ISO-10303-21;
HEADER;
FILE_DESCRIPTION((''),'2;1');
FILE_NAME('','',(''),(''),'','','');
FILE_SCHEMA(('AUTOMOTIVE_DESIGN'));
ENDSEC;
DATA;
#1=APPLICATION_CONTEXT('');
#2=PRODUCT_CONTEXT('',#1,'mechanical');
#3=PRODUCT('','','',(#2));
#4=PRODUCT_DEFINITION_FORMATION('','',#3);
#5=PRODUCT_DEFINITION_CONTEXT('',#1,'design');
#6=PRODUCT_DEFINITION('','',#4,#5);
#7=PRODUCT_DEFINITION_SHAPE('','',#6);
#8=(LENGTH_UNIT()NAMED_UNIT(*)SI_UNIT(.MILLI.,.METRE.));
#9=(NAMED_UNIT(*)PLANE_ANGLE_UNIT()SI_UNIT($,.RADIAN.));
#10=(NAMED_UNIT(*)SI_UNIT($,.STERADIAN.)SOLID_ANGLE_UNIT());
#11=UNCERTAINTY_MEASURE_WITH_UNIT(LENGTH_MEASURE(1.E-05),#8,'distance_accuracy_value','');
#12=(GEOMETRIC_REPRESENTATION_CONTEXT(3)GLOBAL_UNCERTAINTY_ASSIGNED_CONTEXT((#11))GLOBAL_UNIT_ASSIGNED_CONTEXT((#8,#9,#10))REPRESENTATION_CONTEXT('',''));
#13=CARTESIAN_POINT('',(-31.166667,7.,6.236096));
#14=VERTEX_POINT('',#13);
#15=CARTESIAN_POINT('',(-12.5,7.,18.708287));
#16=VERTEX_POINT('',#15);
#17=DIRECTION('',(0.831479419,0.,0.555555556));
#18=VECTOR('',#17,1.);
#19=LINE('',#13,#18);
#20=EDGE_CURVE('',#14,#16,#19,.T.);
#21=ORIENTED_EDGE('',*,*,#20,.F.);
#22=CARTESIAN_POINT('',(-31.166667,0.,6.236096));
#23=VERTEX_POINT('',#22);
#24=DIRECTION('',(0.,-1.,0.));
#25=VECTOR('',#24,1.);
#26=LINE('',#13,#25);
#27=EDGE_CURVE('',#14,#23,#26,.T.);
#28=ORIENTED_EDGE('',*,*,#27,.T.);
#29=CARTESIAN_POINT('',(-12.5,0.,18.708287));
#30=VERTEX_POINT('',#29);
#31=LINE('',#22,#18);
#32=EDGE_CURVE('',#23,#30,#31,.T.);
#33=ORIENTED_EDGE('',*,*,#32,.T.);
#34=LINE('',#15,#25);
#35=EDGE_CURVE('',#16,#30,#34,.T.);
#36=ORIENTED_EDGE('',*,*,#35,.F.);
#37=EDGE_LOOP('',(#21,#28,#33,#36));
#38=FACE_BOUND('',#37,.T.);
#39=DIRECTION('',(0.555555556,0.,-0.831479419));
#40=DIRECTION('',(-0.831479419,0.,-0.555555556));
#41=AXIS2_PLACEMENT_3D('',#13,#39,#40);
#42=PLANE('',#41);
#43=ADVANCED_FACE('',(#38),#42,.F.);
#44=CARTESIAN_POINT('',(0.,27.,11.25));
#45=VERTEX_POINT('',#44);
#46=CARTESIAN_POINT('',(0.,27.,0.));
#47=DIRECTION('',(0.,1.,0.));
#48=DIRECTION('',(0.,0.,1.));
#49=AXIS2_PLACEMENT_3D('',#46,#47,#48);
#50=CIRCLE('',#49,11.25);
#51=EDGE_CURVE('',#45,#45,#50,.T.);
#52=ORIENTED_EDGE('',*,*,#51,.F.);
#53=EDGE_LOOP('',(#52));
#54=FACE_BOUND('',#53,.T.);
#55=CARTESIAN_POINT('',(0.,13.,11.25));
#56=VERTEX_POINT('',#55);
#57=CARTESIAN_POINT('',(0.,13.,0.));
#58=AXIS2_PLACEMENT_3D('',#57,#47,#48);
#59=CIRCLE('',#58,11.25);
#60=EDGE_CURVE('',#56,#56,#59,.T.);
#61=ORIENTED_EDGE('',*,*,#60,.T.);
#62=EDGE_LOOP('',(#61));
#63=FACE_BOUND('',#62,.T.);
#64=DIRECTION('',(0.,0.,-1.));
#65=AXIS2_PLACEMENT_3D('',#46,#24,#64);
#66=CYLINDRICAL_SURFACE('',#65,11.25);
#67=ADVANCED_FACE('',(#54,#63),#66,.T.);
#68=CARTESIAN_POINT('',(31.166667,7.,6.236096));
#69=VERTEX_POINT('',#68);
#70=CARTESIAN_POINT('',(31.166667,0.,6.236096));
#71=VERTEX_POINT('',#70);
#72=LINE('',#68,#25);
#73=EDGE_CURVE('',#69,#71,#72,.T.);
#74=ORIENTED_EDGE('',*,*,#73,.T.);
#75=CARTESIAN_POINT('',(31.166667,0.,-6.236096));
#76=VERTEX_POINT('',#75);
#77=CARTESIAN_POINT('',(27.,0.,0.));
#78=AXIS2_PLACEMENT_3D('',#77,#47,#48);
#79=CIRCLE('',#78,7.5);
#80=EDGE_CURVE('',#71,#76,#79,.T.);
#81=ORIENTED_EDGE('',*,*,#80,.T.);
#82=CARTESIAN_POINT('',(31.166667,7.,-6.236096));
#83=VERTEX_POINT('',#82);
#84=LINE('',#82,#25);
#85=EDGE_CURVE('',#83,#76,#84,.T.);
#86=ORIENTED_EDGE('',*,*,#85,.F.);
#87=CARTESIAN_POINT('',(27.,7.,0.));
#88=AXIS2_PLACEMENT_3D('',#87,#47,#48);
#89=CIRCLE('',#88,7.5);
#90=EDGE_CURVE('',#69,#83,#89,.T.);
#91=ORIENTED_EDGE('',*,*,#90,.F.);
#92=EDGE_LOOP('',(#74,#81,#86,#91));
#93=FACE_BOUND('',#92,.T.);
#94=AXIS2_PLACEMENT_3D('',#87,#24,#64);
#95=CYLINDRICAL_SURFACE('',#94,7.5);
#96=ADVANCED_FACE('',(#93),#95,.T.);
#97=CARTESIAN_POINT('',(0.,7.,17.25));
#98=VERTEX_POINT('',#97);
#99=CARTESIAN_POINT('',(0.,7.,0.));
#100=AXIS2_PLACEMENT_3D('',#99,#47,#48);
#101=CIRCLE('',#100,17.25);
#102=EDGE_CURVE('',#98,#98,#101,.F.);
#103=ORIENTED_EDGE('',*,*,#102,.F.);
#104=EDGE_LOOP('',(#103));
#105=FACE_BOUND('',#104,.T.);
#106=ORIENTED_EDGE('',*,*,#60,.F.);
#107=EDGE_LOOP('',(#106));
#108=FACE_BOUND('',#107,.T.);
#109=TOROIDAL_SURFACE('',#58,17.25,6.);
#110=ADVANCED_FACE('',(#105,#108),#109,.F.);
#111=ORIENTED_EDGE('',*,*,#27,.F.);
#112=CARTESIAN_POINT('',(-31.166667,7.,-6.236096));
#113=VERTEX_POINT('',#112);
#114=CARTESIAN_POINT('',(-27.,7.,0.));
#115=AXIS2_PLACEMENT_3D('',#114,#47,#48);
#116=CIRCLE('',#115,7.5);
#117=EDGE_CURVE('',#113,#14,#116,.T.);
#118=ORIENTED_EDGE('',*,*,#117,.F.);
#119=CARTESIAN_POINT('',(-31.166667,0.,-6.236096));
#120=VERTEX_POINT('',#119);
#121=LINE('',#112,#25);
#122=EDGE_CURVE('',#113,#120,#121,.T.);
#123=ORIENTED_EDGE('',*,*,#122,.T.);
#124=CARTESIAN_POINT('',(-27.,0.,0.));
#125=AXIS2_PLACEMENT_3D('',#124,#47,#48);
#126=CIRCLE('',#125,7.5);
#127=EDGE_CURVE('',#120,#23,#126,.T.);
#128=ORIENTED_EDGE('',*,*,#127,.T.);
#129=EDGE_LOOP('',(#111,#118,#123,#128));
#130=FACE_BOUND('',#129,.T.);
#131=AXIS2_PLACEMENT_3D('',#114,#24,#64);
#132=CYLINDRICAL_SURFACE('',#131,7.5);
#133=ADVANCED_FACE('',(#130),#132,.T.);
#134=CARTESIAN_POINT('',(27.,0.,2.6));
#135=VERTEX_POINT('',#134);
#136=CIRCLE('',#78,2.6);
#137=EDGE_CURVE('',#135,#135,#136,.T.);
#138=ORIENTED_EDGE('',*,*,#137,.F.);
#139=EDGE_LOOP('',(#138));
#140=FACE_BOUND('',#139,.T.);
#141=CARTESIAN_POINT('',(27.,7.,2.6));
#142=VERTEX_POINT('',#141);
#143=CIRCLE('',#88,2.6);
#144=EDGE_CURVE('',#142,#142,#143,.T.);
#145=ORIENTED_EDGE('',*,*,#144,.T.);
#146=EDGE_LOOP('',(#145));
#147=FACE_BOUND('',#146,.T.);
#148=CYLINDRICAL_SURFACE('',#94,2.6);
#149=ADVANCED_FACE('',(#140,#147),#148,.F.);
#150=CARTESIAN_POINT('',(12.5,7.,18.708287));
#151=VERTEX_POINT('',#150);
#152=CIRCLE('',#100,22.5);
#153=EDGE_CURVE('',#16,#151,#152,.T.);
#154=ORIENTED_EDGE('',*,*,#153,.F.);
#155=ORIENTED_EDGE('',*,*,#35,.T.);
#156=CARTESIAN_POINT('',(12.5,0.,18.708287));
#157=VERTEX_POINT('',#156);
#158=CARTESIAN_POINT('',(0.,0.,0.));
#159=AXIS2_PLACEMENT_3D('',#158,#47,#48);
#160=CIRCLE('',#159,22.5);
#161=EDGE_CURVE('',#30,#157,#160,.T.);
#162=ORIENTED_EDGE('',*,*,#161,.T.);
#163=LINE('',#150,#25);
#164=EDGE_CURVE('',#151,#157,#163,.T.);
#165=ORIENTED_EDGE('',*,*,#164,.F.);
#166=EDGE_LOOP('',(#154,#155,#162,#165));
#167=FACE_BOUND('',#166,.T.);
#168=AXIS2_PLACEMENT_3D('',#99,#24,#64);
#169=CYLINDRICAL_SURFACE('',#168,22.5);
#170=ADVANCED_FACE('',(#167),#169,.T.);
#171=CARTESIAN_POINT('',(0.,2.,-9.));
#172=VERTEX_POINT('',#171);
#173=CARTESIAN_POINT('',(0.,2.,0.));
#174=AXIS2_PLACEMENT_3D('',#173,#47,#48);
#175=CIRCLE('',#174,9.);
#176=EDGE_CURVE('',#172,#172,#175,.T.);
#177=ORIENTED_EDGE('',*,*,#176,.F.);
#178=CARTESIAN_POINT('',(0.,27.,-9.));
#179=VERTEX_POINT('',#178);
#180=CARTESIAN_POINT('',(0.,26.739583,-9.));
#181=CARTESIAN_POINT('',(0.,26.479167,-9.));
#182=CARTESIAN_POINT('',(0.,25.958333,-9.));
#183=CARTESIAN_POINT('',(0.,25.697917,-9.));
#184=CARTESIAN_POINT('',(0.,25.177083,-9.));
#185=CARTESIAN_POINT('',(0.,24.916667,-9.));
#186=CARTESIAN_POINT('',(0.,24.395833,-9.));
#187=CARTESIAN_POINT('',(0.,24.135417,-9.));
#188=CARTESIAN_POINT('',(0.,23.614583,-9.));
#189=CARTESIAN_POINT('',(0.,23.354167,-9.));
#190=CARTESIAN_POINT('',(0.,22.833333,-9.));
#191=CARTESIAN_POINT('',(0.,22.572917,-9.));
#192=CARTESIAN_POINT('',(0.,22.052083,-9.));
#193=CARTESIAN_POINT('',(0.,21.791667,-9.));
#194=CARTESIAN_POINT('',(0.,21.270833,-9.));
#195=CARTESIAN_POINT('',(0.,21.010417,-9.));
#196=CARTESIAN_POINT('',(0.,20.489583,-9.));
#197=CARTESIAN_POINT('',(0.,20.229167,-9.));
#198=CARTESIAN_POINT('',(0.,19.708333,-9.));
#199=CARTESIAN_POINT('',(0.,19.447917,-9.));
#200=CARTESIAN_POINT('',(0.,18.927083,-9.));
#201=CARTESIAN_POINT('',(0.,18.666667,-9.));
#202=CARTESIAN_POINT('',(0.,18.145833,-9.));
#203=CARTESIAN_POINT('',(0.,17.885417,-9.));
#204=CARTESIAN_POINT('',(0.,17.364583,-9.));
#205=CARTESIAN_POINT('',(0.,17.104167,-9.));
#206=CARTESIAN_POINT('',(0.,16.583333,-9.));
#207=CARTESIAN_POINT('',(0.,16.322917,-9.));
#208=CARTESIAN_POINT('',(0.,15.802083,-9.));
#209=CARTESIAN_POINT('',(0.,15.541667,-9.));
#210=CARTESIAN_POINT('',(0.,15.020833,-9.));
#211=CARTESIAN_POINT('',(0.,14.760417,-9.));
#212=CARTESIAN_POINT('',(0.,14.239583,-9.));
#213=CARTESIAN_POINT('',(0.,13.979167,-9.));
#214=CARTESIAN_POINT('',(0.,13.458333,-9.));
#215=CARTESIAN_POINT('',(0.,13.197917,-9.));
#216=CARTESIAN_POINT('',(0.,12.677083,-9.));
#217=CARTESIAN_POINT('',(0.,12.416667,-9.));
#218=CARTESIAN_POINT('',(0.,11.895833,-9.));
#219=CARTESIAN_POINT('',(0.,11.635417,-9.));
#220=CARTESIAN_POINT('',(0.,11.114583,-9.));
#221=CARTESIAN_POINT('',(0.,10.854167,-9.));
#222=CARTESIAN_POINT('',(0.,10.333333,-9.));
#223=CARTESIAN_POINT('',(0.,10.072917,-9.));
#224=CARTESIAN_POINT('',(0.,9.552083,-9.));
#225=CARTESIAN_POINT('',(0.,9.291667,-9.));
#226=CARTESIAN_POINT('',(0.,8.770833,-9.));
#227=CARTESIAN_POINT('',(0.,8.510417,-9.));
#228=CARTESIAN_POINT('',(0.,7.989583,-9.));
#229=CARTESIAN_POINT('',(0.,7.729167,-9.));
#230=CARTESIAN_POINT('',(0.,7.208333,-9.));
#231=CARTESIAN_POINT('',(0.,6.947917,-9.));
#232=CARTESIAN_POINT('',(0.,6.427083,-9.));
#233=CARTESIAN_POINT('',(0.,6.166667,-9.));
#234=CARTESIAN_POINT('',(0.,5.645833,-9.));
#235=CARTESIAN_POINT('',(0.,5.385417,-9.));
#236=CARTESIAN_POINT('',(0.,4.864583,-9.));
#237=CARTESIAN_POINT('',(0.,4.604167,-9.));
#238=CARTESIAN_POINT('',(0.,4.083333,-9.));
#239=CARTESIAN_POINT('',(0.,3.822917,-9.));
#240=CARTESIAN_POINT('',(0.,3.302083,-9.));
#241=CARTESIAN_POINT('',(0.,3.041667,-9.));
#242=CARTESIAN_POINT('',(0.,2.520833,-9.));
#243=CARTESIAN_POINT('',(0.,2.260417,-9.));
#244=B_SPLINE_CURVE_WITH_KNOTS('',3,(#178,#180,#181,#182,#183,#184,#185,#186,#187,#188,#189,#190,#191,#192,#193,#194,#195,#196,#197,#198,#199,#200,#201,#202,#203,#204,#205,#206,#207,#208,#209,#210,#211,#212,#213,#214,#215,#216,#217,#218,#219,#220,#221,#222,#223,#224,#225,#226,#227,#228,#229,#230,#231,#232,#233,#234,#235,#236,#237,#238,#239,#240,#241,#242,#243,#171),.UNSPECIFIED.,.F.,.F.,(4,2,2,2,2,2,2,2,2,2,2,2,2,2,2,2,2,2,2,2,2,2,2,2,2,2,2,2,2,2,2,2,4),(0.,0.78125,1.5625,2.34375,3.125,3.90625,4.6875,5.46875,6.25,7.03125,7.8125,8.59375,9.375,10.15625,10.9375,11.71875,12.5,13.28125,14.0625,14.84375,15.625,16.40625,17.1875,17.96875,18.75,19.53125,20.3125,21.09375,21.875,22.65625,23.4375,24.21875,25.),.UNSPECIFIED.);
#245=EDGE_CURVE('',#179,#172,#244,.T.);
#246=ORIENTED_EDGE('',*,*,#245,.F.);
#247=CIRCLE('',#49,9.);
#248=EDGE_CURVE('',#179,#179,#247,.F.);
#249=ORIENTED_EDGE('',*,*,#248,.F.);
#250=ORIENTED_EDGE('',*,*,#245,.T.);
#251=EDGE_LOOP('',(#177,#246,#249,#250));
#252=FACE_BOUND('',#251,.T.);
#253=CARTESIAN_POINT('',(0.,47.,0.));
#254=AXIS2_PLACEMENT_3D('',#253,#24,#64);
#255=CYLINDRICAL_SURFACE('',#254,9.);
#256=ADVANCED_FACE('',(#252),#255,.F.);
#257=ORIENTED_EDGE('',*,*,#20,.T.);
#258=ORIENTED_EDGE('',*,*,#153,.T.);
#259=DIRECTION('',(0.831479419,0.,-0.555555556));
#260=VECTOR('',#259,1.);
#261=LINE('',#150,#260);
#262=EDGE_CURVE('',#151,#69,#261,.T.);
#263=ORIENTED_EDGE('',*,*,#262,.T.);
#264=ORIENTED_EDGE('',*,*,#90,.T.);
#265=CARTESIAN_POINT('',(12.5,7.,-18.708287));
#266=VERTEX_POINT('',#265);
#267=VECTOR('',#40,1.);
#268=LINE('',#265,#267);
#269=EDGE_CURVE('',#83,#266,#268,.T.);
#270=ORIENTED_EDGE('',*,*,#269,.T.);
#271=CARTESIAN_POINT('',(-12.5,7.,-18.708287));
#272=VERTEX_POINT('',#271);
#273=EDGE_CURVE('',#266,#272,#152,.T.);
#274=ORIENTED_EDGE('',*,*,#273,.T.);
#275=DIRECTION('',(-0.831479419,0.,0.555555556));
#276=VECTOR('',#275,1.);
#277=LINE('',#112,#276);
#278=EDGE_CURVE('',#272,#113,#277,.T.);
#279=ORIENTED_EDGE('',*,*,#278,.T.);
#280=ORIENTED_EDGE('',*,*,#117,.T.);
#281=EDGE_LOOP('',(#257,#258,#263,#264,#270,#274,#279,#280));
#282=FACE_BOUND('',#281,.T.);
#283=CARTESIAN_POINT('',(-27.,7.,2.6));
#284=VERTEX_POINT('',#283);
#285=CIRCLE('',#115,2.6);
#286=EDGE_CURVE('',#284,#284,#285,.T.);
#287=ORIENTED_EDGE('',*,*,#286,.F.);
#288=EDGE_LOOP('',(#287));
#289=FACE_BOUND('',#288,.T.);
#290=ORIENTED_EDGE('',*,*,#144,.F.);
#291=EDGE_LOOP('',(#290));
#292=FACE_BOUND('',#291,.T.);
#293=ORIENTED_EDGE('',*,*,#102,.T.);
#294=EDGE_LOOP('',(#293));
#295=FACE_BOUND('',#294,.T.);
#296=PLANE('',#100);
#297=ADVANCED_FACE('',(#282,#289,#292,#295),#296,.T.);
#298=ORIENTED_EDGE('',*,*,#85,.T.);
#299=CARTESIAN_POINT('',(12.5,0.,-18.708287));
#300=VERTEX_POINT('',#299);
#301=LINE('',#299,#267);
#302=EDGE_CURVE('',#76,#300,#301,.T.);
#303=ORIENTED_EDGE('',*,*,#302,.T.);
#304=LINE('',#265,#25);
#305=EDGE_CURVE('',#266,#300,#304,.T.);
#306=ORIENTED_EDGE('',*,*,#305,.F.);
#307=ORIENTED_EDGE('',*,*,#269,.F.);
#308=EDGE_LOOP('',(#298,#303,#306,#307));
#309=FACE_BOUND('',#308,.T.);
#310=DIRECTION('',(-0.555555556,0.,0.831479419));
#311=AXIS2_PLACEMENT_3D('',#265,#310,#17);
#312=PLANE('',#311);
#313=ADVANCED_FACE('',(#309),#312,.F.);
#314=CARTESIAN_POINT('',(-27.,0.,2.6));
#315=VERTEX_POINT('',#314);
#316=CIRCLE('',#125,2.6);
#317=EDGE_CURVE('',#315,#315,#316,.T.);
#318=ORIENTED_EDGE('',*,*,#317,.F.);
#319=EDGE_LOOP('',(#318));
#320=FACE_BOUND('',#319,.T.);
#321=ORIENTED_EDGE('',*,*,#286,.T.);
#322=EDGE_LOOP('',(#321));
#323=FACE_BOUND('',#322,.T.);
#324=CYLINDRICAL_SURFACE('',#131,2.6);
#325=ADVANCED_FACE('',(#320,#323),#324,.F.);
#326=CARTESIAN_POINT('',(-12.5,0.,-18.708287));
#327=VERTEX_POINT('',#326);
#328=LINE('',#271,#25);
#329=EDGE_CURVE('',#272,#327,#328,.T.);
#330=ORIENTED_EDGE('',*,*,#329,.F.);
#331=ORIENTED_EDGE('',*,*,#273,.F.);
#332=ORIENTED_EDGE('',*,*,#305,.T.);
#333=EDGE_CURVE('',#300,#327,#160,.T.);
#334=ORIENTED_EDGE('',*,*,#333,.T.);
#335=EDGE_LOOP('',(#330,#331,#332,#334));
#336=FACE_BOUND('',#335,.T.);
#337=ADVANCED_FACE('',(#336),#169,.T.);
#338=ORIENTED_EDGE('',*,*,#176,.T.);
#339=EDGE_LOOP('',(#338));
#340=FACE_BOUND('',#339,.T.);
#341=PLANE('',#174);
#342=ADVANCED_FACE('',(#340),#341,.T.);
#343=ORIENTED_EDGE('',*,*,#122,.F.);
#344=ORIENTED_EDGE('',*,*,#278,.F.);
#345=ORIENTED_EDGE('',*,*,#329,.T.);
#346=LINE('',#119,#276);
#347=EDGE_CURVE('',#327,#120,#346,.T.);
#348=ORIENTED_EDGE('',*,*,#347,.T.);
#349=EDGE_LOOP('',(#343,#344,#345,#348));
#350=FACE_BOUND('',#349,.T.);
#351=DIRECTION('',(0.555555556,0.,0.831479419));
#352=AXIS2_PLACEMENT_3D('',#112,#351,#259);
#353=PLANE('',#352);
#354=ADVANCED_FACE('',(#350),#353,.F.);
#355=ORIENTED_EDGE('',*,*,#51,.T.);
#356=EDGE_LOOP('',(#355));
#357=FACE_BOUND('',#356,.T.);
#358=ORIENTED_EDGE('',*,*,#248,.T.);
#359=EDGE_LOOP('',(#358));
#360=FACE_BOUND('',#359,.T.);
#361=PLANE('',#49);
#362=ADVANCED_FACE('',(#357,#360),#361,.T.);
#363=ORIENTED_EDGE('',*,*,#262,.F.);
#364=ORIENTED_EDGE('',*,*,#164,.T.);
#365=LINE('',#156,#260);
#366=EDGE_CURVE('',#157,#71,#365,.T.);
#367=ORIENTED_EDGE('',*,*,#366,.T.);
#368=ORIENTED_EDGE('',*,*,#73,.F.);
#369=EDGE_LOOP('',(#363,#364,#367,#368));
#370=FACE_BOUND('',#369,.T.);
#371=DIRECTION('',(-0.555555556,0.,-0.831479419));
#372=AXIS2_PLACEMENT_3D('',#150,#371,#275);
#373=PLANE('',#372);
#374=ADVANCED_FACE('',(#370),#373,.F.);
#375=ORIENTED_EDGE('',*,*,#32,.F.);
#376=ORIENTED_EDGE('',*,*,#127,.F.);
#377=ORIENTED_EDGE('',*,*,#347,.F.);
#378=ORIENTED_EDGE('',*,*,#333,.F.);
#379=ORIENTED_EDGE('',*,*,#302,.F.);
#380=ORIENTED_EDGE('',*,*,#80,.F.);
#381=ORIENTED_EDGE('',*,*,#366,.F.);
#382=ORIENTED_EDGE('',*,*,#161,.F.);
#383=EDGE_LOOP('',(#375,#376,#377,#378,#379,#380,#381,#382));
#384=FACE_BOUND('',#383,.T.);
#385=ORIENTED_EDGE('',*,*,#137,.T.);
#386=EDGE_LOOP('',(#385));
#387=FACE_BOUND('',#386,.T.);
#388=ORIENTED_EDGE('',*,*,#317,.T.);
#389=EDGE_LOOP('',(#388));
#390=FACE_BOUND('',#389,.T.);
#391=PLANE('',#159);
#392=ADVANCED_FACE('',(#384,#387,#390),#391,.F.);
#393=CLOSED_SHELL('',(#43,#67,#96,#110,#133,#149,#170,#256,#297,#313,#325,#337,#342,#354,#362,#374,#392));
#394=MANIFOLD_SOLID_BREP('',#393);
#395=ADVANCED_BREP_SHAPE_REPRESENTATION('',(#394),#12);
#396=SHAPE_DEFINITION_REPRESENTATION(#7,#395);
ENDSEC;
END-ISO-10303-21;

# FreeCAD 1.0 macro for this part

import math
import FreeCAD as App
import Part
import Sketcher


def edges_at(feature, points):
    """Names of the edges that pass closest to the given points."""
    edges = feature.Shape.Edges
    near = lambda p: min(range(len(edges)), key=lambda i: edges[i].distToShape(Part.Vertex(*p))[0])
    return sorted({f"Edge{near(p) + 1}" for p in points})

doc = App.newDocument("Part")
body = doc.addObject("PartDesign::Body", "Body")

# Sketch on XZ plane
sketch1 = body.newObject("Sketcher::SketchObject", "Sketch")
sketch1.AttachmentSupport = (doc.getObject("XZ_Plane"), [""])
sketch1.MapMode = "FlatFace"
sketch1.addGeometry([
    Part.LineSegment(App.Vector(-12.5, -18.708287, 0), App.Vector(-31.166667, -6.236096, 0)),  # 0
    Part.ArcOfCircle(Part.Circle(App.Vector(-27, 0, 0), App.Vector(0, 0, 1), 7.5), math.radians(123.748989), math.radians(236.251011)),  # 1
    Part.LineSegment(App.Vector(-31.166667, 6.236096, 0), App.Vector(-12.5, 18.708287, 0)),  # 2
    Part.ArcOfCircle(Part.Circle(App.Vector(0, 0, 0), App.Vector(0, 0, 1), 22.5), math.radians(56.251011), math.radians(123.748989)),  # 3
    Part.LineSegment(App.Vector(12.5, 18.708287, 0), App.Vector(31.166667, 6.236096, 0)),  # 4
    Part.ArcOfCircle(Part.Circle(App.Vector(27, 0, 0), App.Vector(0, 0, 1), 7.5), math.radians(-56.251011), math.radians(56.251011)),  # 5
    Part.LineSegment(App.Vector(31.166667, -6.236096, 0), App.Vector(12.5, -18.708287, 0)),  # 6
    Part.ArcOfCircle(Part.Circle(App.Vector(0, 0, 0), App.Vector(0, 0, 1), 22.5), math.radians(-123.748989), math.radians(-56.251011)),  # 7
    Part.Circle(App.Vector(27, 0, 0), App.Vector(0, 0, 1), 2.6),  # 8
    Part.Circle(App.Vector(-27, 0, 0), App.Vector(0, 0, 1), 2.6),  # 9
], False)
sketch1.addConstraint([
    Sketcher.Constraint("Tangent", 0, 2, 1, 2),
    Sketcher.Constraint("Tangent", 1, 1, 2, 1),
    Sketcher.Constraint("Tangent", 2, 2, 3, 2),
    Sketcher.Constraint("Tangent", 3, 1, 4, 1),
    Sketcher.Constraint("Tangent", 4, 2, 5, 2),
    Sketcher.Constraint("Tangent", 5, 1, 6, 1),
    Sketcher.Constraint("Tangent", 6, 2, 7, 2),
    Sketcher.Constraint("Tangent", 7, 1, 0, 1),
    Sketcher.Constraint("Coincident", 3, 3, -1, 1),
    Sketcher.Constraint("Coincident", 7, 3, -1, 1),
    Sketcher.Constraint("Coincident", 8, 3, 5, 3),
    Sketcher.Constraint("Coincident", 9, 3, 1, 3),
    Sketcher.Constraint("Equal", 1, 5),
    Sketcher.Constraint("Equal", 3, 7),
    Sketcher.Constraint("Equal", 8, 9),
    Sketcher.Constraint("Symmetric", 1, 3, 5, 3, -1, 1),
    Sketcher.Constraint("PointOnObject", 1, 3, -1),
    Sketcher.Constraint("Diameter", 8, 5.2),
    Sketcher.Constraint("Radius", 1, 7.5),
    Sketcher.Constraint("Radius", 3, 22.5),
    Sketcher.Constraint("DistanceX", 1, 3, -1, 1, 27.0),
])
pad1 = body.newObject("PartDesign::Pad", "Pad")
pad1.Profile = sketch1
pad1.Length = 7
pad1.Reversed = True

# Sketch on XZ plane
sketch2 = body.newObject("Sketcher::SketchObject", "Sketch001")
sketch2.AttachmentSupport = (doc.getObject("XZ_Plane"), [""])
sketch2.MapMode = "FlatFace"
sketch2.AttachmentOffset = App.Placement(App.Vector(0, 0, -7), App.Rotation())
sketch2.addGeometry([
    Part.Circle(App.Vector(0, 0, 0), App.Vector(0, 0, 1), 11.25),
    Part.Circle(App.Vector(0, 0, 0), App.Vector(0, 0, 1), 8),
], False)
sketch2.addConstraint([
    Sketcher.Constraint("Coincident", 0, 3, -1, 1),
    Sketcher.Constraint("Coincident", 1, 3, -1, 1),
    Sketcher.Constraint("Diameter", 1, 16.0),
    Sketcher.Constraint("Diameter", 0, 22.5),
])
pad2 = body.newObject("PartDesign::Pad", "Pad001")
pad2.Profile = sketch2
pad2.Length = 20
pad2.Reversed = True

# Sketch on XZ plane
sketch3 = body.newObject("Sketcher::SketchObject", "Sketch002")
sketch3.AttachmentSupport = (doc.getObject("XZ_Plane"), [""])
sketch3.MapMode = "FlatFace"
sketch3.AttachmentOffset = App.Placement(App.Vector(0, 0, -7), App.Rotation())
sketch3.addGeometry(Part.Circle(App.Vector(0, 0, 0), App.Vector(0, 0, 1), 9), False)
sketch3.addConstraint([
    Sketcher.Constraint("Coincident", 0, 3, -1, 1),
    Sketcher.Constraint("Diameter", 0, 18.0),
])
pocket1 = body.newObject("PartDesign::Pocket", "Pocket")
pocket1.Profile = sketch3
pocket1.Type = "TwoLengths"
pocket1.Length = 40
pocket1.Length2 = 5
doc.recompute()

fillet = body.newObject("PartDesign::Fillet", "Fillet")
fillet.Base = (pocket1, edges_at(pocket1, [(0, 7, -11.25)]))
fillet.Radius = 6

doc.recompute()
